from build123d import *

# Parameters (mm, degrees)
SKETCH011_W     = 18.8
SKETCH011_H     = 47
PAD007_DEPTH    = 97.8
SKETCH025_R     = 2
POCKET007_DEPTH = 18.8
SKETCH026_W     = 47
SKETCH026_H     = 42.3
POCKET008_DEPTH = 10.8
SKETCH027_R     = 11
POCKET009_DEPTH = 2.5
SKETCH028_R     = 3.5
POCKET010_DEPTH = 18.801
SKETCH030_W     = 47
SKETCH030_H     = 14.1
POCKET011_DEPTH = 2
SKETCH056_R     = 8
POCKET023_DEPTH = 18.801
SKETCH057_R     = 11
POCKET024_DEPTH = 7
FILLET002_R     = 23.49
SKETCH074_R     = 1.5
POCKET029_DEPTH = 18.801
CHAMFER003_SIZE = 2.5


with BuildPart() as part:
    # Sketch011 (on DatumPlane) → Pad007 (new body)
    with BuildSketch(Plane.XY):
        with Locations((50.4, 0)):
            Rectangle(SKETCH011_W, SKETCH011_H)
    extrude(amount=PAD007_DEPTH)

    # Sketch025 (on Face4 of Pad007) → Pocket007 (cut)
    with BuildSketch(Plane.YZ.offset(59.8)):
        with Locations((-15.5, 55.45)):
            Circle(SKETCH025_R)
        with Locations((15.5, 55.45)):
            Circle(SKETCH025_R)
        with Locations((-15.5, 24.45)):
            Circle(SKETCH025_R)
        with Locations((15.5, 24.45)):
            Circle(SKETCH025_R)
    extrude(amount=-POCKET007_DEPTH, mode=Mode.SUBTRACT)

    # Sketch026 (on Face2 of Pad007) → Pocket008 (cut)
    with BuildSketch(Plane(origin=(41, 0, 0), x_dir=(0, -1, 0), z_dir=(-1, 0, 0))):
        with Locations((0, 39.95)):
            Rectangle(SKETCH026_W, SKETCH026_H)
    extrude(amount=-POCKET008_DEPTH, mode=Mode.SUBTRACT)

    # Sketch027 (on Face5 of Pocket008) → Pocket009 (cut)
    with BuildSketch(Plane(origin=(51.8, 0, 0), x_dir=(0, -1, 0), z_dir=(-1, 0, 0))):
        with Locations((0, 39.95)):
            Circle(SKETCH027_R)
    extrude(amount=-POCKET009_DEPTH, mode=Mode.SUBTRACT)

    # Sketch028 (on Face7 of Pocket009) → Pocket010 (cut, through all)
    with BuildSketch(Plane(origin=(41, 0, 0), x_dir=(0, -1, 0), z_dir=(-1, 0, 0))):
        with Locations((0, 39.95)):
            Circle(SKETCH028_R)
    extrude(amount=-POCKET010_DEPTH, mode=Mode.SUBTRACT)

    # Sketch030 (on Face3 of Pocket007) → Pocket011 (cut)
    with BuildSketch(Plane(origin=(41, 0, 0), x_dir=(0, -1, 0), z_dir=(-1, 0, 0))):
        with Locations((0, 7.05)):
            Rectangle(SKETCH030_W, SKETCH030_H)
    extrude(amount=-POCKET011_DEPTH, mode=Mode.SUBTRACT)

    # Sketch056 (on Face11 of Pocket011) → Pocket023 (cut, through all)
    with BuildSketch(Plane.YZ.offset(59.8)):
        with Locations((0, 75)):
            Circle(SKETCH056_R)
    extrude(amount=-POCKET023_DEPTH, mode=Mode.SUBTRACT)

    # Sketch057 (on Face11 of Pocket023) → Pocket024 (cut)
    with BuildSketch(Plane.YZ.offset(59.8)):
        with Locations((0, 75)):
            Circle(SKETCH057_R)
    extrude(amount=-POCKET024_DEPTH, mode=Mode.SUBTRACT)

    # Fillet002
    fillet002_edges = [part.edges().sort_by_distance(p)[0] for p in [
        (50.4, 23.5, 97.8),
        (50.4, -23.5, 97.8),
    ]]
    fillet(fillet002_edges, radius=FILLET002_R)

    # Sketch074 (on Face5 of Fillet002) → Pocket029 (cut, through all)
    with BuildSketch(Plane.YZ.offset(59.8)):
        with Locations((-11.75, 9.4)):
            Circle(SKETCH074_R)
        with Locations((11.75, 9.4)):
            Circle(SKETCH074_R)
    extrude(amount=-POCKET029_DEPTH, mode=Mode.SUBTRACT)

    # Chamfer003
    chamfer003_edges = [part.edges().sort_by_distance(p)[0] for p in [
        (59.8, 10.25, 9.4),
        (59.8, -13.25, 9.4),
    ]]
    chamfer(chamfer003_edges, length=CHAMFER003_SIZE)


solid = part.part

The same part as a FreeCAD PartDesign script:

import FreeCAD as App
import Part
import Sketcher
Q = App.Units.Quantity


def edges_at(feature, points):
    """Names of the edges that pass closest to the given points."""
    edges = feature.Shape.Edges
    near = lambda p: min(range(len(edges)), key=lambda i: edges[i].distToShape(Part.Vertex(*p))[0])
    return sorted({f"Edge{near(p) + 1}" for p in points})


def add_polygon(sketch, points):
    """Adds a closed chain of lines whose ends are joined by coincident constraints."""
    first, n = sketch.GeometryCount, len(points)
    for a, b in zip(points, points[1:] + points[:1]):
        sketch.addGeometry(Part.LineSegment(App.Vector(*a, 0), App.Vector(*b, 0)), False)
    for i in range(n):
        sketch.addConstraint(Sketcher.Constraint("Coincident", first + i, 2, first + (i + 1) % n, 1))

doc = App.newDocument("Part")
body = doc.addObject("PartDesign::Body", "Body")

sketch1 = doc.addObject("Sketcher::SketchObject", "Sketch")
body.addObject(sketch1)
sketch1.AttachmentSupport = (doc.XY_Plane, [""])
sketch1.MapMode = "FlatFace"
add_polygon(sketch1, [(41, 24), (41, -24), (60, -24), (60, 24)])
sketch1.addConstraint(Sketcher.Constraint("Vertical", 0))
sketch1.addConstraint(Sketcher.Constraint("Horizontal", 1))
sketch1.addConstraint(Sketcher.Constraint("Vertical", 2))
sketch1.addConstraint(Sketcher.Constraint("Horizontal", 3))
sketch1.addConstraint(Sketcher.Constraint("DistanceY", 0, 2, 0, 1, Q("47 mm")))
sketch1.addConstraint(Sketcher.Constraint("DistanceX", 1, 1, 1, 2, Q("18.8 mm")))
sketch1.addConstraint(Sketcher.Constraint("DistanceX", -1, 1, 0, 2, Q("41 mm")))
sketch1.addConstraint(Sketcher.Constraint("DistanceY", 0, 2, -1, 1, Q("23.5 mm")))
pad1 = doc.addObject("PartDesign::Pad", "Pad")
body.addObject(pad1)
pad1.Profile = sketch1
pad1.Length = 97.8

sketch2 = doc.addObject("Sketcher::SketchObject", "Sketch001")
body.addObject(sketch2)
sketch2.AttachmentSupport = (doc.YZ_Plane, [""])
sketch2.MapMode = "FlatFace"
sketch2.AttachmentOffset = App.Placement(App.Vector(0, 0, 59.8), App.Rotation())
sketch2.addGeometry(Part.Circle(App.Vector(-15.5, 55.5, 0), App.Vector(0, 0, 1), 2), False)
sketch2.addGeometry(Part.Circle(App.Vector(15.5, 55.5, 0), App.Vector(0, 0, 1), 2), False)
sketch2.addGeometry(Part.Circle(App.Vector(-15.5, 24.4, 0), App.Vector(0, 0, 1), 2), False)
sketch2.addGeometry(Part.Circle(App.Vector(15.5, 24.4, 0), App.Vector(0, 0, 1), 2), False)
sketch2.addConstraint(Sketcher.Constraint("Equal", 0, 1))
sketch2.addConstraint(Sketcher.Constraint("Equal", 1, 2))
sketch2.addConstraint(Sketcher.Constraint("Equal", 2, 3))
sketch2.addConstraint(Sketcher.Constraint("Symmetric", 0, 3, 1, 3, -2))
sketch2.addConstraint(Sketcher.Constraint("Symmetric", 2, 3, 3, 3, -2))
sketch2.addConstraint(Sketcher.Constraint("Vertical", 0, 3, 2, 3))
sketch2.addConstraint(Sketcher.Constraint("Diameter", 0, Q("4 mm")))
sketch2.addConstraint(Sketcher.Constraint("DistanceX", 0, 3, 1, 3, Q("31 mm")))
sketch2.addConstraint(Sketcher.Constraint("DistanceY", 2, 3, 0, 3, Q("31 mm")))
sketch2.addConstraint(Sketcher.Constraint("DistanceY", -1, 1, 0, 3, Q("55.45 mm")))
pocket1 = doc.addObject("PartDesign::Pocket", "Pocket")
body.addObject(pocket1)
pocket1.Profile = sketch2
pocket1.Length = 18.8

sketch3 = doc.addObject("Sketcher::SketchObject", "Sketch002")
body.addObject(sketch3)
sketch3.AttachmentSupport = (doc.YZ_Plane, [""])
sketch3.MapMode = "FlatFace"
sketch3.AttachmentOffset = App.Placement(App.Vector(0, 0, 41), App.Rotation())
add_polygon(sketch3, [(24, 61), (24, 19), (-24, 19), (-24, 61)])
sketch3.addConstraint(Sketcher.Constraint("Vertical", 0))
sketch3.addConstraint(Sketcher.Constraint("Horizontal", 1))
sketch3.addConstraint(Sketcher.Constraint("Vertical", 2))
sketch3.addConstraint(Sketcher.Constraint("Horizontal", 3))
sketch3.addConstraint(Sketcher.Constraint("DistanceX", 1, 2, 1, 1, Q("47 mm")))
sketch3.addConstraint(Sketcher.Constraint("DistanceY", 0, 2, 0, 1, Q("42.3 mm")))
sketch3.addConstraint(Sketcher.Constraint("DistanceX", -1, 1, 0, 2, Q("23.5 mm")))
sketch3.addConstraint(Sketcher.Constraint("DistanceY", -1, 1, 0, 2, Q("18.8 mm")))
pocket2 = doc.addObject("PartDesign::Pocket", "Pocket001")
body.addObject(pocket2)
pocket2.Profile = sketch3
pocket2.Length = 10.8
pocket2.Reversed = True

sketch4 = doc.addObject("Sketcher::SketchObject", "Sketch003")
body.addObject(sketch4)
sketch4.AttachmentSupport = (doc.YZ_Plane, [""])
sketch4.MapMode = "FlatFace"
sketch4.AttachmentOffset = App.Placement(App.Vector(0, 0, 51.8), App.Rotation())
sketch4.addGeometry(Part.Circle(App.Vector(0, 40, 0), App.Vector(0, 0, 1), 11), False)
sketch4.addConstraint(Sketcher.Constraint("PointOnObject", 0, 3, -2))
sketch4.addConstraint(Sketcher.Constraint("Diameter", 0, Q("22 mm")))
sketch4.addConstraint(Sketcher.Constraint("DistanceY", -1, 1, 0, 3, Q("39.95 mm")))
pocket3 = doc.addObject("PartDesign::Pocket", "Pocket002")
body.addObject(pocket3)
pocket3.Profile = sketch4
pocket3.Length = 2.5
pocket3.Reversed = True

sketch5 = doc.addObject("Sketcher::SketchObject", "Sketch004")
body.addObject(sketch5)
sketch5.AttachmentSupport = (doc.YZ_Plane, [""])
sketch5.MapMode = "FlatFace"
sketch5.AttachmentOffset = App.Placement(App.Vector(0, 0, 41), App.Rotation())
sketch5.addGeometry(Part.Circle(App.Vector(0, 40, 0), App.Vector(0, 0, 1), 3.5), False)
sketch5.addConstraint(Sketcher.Constraint("PointOnObject", 0, 3, -2))
sketch5.addConstraint(Sketcher.Constraint("Diameter", 0, Q("7 mm")))
sketch5.addConstraint(Sketcher.Constraint("DistanceY", -1, 1, 0, 3, Q("39.95 mm")))
pocket4 = doc.addObject("PartDesign::Pocket", "Pocket003")
body.addObject(pocket4)
pocket4.Profile = sketch5
pocket4.Type = "ThroughAll"
pocket4.Reversed = True

sketch6 = doc.addObject("Sketcher::SketchObject", "Sketch005")
body.addObject(sketch6)
sketch6.AttachmentSupport = (doc.YZ_Plane, [""])
sketch6.MapMode = "FlatFace"
sketch6.AttachmentOffset = App.Placement(App.Vector(0, 0, 41), App.Rotation())
add_polygon(sketch6, [(24, 14), (24, 0), (-24, 0), (-24, 14)])
sketch6.addConstraint(Sketcher.Constraint("Vertical", 0))
sketch6.addConstraint(Sketcher.Constraint("Horizontal", 1))
sketch6.addConstraint(Sketcher.Constraint("Vertical", 2))
sketch6.addConstraint(Sketcher.Constraint("Horizontal", 3))
sketch6.addConstraint(Sketcher.Constraint("Symmetric", 0, 2, 1, 2, -1, 1))
sketch6.addConstraint(Sketcher.Constraint("DistanceX", 1, 2, 1, 1, Q("47 mm")))
sketch6.addConstraint(Sketcher.Constraint("DistanceY", 0, 2, 0, 1, Q("14.1 mm")))
pocket5 = doc.addObject("PartDesign::Pocket", "Pocket004")
body.addObject(pocket5)
pocket5.Profile = sketch6
pocket5.Length = 2
pocket5.Reversed = True

sketch7 = doc.addObject("Sketcher::SketchObject", "Sketch006")
body.addObject(sketch7)
sketch7.AttachmentSupport = (doc.YZ_Plane, [""])
sketch7.MapMode = "FlatFace"
sketch7.AttachmentOffset = App.Placement(App.Vector(0, 0, 59.8), App.Rotation())
sketch7.addGeometry(Part.Circle(App.Vector(0, 75, 0), App.Vector(0, 0, 1), 8), False)
sketch7.addConstraint(Sketcher.Constraint("PointOnObject", 0, 3, -2))
sketch7.addConstraint(Sketcher.Constraint("Diameter", 0, Q("16 mm")))
sketch7.addConstraint(Sketcher.Constraint("DistanceY", -1, 1, 0, 3, Q("75 mm")))
pocket6 = doc.addObject("PartDesign::Pocket", "Pocket005")
body.addObject(pocket6)
pocket6.Profile = sketch7
pocket6.Type = "ThroughAll"

sketch8 = doc.addObject("Sketcher::SketchObject", "Sketch007")
body.addObject(sketch8)
sketch8.AttachmentSupport = (doc.YZ_Plane, [""])
sketch8.MapMode = "FlatFace"
sketch8.AttachmentOffset = App.Placement(App.Vector(0, 0, 59.8), App.Rotation())
sketch8.addGeometry(Part.Circle(App.Vector(0, 75, 0), App.Vector(0, 0, 1), 11), False)
sketch8.addConstraint(Sketcher.Constraint("PointOnObject", 0, 3, -2))
sketch8.addConstraint(Sketcher.Constraint("Diameter", 0, Q("22 mm")))
sketch8.addConstraint(Sketcher.Constraint("DistanceY", -1, 1, 0, 3, Q("75 mm")))
pocket7 = doc.addObject("PartDesign::Pocket", "Pocket006")
body.addObject(pocket7)
pocket7.Profile = sketch8
pocket7.Length = 7
doc.recompute()

fillet = doc.addObject("PartDesign::Fillet", "Fillet")
body.addObject(fillet)
fillet.Base = (pocket7, edges_at(pocket7, [(50.4, 23.5, 97.8), (50.4, -23.5, 97.8)]))
fillet.Radius = 23.49

sketch9 = doc.addObject("Sketcher::SketchObject", "Sketch008")
body.addObject(sketch9)
sketch9.AttachmentSupport = (doc.YZ_Plane, [""])
sketch9.MapMode = "FlatFace"
sketch9.AttachmentOffset = App.Placement(App.Vector(0, 0, 59.8), App.Rotation())
sketch9.addGeometry(Part.Circle(App.Vector(-11.8, 9.4, 0), App.Vector(0, 0, 1), 1.5), False)
sketch9.addGeometry(Part.Circle(App.Vector(11.8, 9.4, 0), App.Vector(0, 0, 1), 1.5), False)
sketch9.addConstraint(Sketcher.Constraint("Equal", 0, 1))
sketch9.addConstraint(Sketcher.Constraint("Symmetric", 0, 3, 1, 3, -2))
sketch9.addConstraint(Sketcher.Constraint("Diameter", 0, Q("3 mm")))
sketch9.addConstraint(Sketcher.Constraint("DistanceY", -1, 1, 0, 3, Q("9.4 mm")))
sketch9.addConstraint(Sketcher.Constraint("DistanceX", 0, 3, 1, 3, Q("23.5 mm")))
pocket8 = doc.addObject("PartDesign::Pocket", "Pocket007")
body.addObject(pocket8)
pocket8.Profile = sketch9
pocket8.Type = "ThroughAll"
doc.recompute()

chamfer = doc.addObject("PartDesign::Chamfer", "Chamfer")
body.addObject(chamfer)
chamfer.Base = (pocket8, edges_at(pocket8, [(59.8, 10.25, 9.4), (59.8, -13.25, 9.4)]))
chamfer.Size = 2.5

doc.recompute()
